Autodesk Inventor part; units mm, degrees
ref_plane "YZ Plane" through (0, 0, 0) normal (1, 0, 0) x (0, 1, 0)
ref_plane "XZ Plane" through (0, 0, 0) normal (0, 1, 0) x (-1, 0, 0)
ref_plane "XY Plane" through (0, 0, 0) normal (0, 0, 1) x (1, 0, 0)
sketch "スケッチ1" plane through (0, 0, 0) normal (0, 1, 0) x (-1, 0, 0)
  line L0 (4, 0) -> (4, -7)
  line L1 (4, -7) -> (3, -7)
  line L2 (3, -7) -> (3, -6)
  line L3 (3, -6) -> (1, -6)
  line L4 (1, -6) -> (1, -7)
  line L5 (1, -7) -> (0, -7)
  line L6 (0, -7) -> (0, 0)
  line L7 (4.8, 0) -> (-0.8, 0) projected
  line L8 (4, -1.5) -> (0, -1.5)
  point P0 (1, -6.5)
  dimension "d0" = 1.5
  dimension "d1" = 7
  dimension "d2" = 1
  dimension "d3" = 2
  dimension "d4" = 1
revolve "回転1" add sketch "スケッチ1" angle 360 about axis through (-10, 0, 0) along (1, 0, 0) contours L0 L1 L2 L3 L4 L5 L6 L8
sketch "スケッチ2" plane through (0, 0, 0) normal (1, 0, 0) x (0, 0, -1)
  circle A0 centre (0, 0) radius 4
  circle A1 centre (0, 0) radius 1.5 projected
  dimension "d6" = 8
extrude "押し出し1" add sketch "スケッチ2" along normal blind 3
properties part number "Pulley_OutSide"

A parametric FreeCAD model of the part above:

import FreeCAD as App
import Part
import Sketcher
from FreeCAD import Vector
Q = App.Units.Quantity

doc = App.newDocument("Part")
body = doc.addObject("PartDesign::Body", "Body")

sketch1 = body.newObject("Sketcher::SketchObject", "Sketch")
sketch1.AttachmentSupport = (doc.getObject("XZ_Plane"), [""])
sketch1.MapMode = "FlatFace"
sketch1.addGeometry(Part.LineSegment(Vector(-4, -7, 0), Vector(-4, -1.5, 0)), False)
sketch1.addGeometry(Part.LineSegment(Vector(-4, -1.5, 0), Vector(0, -1.5, 0)), False)
sketch1.addGeometry(Part.LineSegment(Vector(0, -1.5, 0), Vector(0, -7, 0)), False)
sketch1.addGeometry(Part.LineSegment(Vector(0, -7, 0), Vector(-1, -7, 0)), False)
sketch1.addGeometry(Part.LineSegment(Vector(-1, -7, 0), Vector(-1, -6, 0)), False)
sketch1.addGeometry(Part.LineSegment(Vector(-1, -6, 0), Vector(-3, -6, 0)), False)
sketch1.addGeometry(Part.LineSegment(Vector(-3, -6, 0), Vector(-3, -7, 0)), False)
sketch1.addGeometry(Part.LineSegment(Vector(-3, -7, 0), Vector(-4, -7, 0)), False)
sketch1.addConstraint(Sketcher.Constraint("Coincident", 0, 2, 1, 1))
sketch1.addConstraint(Sketcher.Constraint("Coincident", 1, 2, 2, 1))
sketch1.addConstraint(Sketcher.Constraint("Coincident", 2, 2, 3, 1))
sketch1.addConstraint(Sketcher.Constraint("Coincident", 3, 2, 4, 1))
sketch1.addConstraint(Sketcher.Constraint("Coincident", 4, 2, 5, 1))
sketch1.addConstraint(Sketcher.Constraint("Coincident", 5, 2, 6, 1))
sketch1.addConstraint(Sketcher.Constraint("Coincident", 6, 2, 7, 1))
sketch1.addConstraint(Sketcher.Constraint("Coincident", 7, 2, 0, 1))
sketch1.addConstraint(Sketcher.Constraint("Vertical", 0))
sketch1.addConstraint(Sketcher.Constraint("Horizontal", 1))
sketch1.addConstraint(Sketcher.Constraint("Vertical", 2))
sketch1.addConstraint(Sketcher.Constraint("Horizontal", 3))
sketch1.addConstraint(Sketcher.Constraint("Vertical", 4))
sketch1.addConstraint(Sketcher.Constraint("Horizontal", 5))
sketch1.addConstraint(Sketcher.Constraint("Vertical", 6))
sketch1.addConstraint(Sketcher.Constraint("Horizontal", 7))
sketch1.addConstraint(Sketcher.Constraint("PointOnObject", 1, 2, -2))
sketch1.addConstraint(Sketcher.Constraint("Horizontal", 3, 2, 6, 2))
sketch1.addConstraint(Sketcher.Constraint("Equal", 3, 7))
sketch1.addConstraint(Sketcher.Constraint("Equal", 7, 4))
sketch1.addConstraint(Sketcher.Constraint("DistanceX", 3, 2, 3, 1, Q("1 mm")))
sketch1.addConstraint(Sketcher.Constraint("DistanceX", 5, 2, 5, 1, Q("2 mm")))
sketch1.addConstraint(Sketcher.Constraint("DistanceY", 2, 2, -1, 1, Q("7 mm")))
sketch1.addConstraint(Sketcher.Constraint("DistanceY", 0, 2, -1, 1, Q("1.5 mm")))
revolution = body.newObject("PartDesign::Revolution", "Revolution")
revolution.Profile = sketch1
revolution.ReferenceAxis = (sketch1, ["H_Axis"])
revolution.Angle = 360

sketch2 = body.newObject("Sketcher::SketchObject", "Sketch001")
sketch2.AttachmentSupport = (doc.getObject("YZ_Plane"), [""])
sketch2.MapMode = "FlatFace"
sketch2.addGeometry(Part.Circle(Vector(0, 0, 0), Vector(0, 0, 1), 4), False)
sketch2.addGeometry(Part.Circle(Vector(0, 0, 0), Vector(0, 0, 1), 1.5), False)
sketch2.addConstraint(Sketcher.Constraint("Coincident", 0, 3, -1, 1))
sketch2.addConstraint(Sketcher.Constraint("Coincident", 1, 3, -1, 1))
sketch2.addConstraint(Sketcher.Constraint("Diameter", 0, Q("8 mm")))
sketch2.addConstraint(Sketcher.Constraint("Diameter", 1, Q("3 mm")))
pad1 = body.newObject("PartDesign::Pad", "Pad")
pad1.Profile = sketch2
pad1.Length = 3

doc.recompute()
